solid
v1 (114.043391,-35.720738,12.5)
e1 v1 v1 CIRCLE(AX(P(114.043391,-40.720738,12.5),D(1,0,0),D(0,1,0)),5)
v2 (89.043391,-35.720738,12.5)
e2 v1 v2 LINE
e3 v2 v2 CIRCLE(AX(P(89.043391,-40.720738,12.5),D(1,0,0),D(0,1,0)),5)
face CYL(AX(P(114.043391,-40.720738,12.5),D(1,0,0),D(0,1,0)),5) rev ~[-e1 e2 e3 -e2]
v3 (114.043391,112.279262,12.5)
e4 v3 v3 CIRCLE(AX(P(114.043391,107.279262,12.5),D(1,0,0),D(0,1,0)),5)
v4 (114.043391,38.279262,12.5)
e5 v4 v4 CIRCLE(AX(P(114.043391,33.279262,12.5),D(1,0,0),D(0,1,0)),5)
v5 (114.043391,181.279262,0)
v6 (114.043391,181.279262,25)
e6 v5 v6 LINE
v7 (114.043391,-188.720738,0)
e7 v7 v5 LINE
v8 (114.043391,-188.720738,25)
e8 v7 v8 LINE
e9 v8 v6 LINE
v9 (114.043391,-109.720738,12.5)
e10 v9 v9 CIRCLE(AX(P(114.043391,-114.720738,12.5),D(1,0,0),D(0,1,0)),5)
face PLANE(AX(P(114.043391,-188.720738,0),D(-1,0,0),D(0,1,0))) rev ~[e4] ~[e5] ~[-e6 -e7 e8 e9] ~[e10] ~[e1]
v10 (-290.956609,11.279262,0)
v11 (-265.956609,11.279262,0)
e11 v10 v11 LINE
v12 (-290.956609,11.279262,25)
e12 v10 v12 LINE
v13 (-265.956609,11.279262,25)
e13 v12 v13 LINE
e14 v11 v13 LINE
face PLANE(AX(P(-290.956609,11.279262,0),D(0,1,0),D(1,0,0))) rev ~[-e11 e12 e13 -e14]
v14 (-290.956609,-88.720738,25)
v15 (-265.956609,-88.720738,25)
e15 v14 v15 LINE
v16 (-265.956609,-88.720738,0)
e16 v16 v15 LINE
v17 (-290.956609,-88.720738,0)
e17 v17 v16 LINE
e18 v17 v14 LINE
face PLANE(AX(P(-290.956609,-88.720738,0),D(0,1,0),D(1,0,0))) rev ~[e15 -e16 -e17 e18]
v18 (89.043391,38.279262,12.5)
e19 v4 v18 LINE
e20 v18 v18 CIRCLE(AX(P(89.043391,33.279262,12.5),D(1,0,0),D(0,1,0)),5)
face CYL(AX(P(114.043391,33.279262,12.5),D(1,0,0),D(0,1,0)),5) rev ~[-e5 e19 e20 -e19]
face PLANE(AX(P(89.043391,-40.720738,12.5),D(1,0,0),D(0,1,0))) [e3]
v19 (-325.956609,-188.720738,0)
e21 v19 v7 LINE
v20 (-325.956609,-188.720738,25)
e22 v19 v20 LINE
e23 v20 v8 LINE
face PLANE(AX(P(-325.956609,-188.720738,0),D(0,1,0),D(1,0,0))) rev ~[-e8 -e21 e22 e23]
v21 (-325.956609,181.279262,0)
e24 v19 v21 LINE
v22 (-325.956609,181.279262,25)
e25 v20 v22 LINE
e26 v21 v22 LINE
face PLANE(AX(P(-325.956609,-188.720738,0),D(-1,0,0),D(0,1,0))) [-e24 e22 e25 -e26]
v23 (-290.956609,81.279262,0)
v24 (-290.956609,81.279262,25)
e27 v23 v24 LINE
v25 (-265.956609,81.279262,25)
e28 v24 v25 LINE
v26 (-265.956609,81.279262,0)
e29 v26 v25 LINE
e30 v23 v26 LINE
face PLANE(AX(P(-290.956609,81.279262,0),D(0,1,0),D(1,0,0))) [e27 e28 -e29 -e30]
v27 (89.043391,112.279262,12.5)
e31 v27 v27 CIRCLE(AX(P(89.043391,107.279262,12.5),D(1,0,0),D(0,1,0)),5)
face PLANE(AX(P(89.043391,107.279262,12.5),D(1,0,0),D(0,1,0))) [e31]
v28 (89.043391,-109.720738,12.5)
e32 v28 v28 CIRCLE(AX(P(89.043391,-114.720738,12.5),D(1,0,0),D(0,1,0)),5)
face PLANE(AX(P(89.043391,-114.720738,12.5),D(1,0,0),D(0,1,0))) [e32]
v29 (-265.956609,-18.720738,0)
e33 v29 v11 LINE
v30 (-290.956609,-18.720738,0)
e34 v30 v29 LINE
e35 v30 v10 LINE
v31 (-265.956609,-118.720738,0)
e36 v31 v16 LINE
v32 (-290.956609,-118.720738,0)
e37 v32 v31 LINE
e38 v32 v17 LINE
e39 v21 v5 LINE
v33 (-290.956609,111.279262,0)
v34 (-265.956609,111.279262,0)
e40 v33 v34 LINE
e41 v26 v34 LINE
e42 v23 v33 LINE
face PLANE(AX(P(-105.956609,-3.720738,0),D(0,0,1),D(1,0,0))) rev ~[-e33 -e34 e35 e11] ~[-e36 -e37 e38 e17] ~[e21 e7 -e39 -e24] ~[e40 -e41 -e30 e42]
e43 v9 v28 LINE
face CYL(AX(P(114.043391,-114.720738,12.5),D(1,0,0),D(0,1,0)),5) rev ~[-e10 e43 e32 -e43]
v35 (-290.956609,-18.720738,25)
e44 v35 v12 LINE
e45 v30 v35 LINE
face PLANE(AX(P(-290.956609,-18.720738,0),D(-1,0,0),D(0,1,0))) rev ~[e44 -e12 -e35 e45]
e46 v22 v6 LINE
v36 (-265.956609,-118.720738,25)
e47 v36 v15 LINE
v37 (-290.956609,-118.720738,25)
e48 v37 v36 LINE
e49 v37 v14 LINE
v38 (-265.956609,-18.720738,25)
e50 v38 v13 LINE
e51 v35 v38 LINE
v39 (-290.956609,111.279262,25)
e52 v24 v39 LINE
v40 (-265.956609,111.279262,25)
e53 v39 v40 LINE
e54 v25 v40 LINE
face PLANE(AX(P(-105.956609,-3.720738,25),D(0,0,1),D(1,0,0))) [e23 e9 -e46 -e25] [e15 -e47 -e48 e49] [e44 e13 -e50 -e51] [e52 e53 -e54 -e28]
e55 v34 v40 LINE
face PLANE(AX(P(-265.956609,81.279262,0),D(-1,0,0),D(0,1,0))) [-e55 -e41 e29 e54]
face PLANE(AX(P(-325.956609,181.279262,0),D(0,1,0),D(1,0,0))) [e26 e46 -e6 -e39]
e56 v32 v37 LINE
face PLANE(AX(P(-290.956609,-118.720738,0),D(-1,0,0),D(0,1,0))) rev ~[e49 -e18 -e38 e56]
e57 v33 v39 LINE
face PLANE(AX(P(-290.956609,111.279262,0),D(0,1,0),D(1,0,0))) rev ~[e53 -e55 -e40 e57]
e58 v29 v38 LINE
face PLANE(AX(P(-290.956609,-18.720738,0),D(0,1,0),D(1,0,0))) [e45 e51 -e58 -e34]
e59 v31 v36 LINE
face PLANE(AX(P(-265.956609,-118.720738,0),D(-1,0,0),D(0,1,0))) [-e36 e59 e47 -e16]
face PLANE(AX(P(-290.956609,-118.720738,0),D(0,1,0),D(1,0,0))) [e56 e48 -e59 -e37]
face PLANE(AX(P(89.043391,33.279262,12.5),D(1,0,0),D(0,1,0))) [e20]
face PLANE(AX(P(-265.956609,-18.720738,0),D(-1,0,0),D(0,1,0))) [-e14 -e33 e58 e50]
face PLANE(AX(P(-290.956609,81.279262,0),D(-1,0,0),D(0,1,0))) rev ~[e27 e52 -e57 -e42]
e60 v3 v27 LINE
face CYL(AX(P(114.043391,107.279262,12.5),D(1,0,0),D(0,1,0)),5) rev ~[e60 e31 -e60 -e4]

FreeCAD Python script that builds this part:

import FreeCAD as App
import Part
import Sketcher

V = App.Vector
Q = App.Units.Quantity


def add_polygon(sketch, points):
    """Adds a closed chain of lines whose ends are joined by coincident constraints."""
    first, n = sketch.GeometryCount, len(points)
    for a, b in zip(points, points[1:] + points[:1]):
        sketch.addGeometry(Part.LineSegment(App.Vector(*a, 0), App.Vector(*b, 0)), False)
    for i in range(n):
        sketch.addConstraint(Sketcher.Constraint("Coincident", first + i, 2, first + (i + 1) % n, 1))

doc = App.newDocument("Part")
params = doc.addObject("Spreadsheet::Sheet", "Params")
for row, (alias, value) in enumerate([
    ("sketch1_width", "440 mm"),
    ("sketch1_width2", "25 mm"),
    ("sketch1_height", "370 mm"),
    ("sketch1_height2", "30 mm"),
    ("pad1_length", "25 mm"),
    ("sketch2_diameter", "10 mm"),
    ("pocket1_length", "25 mm"),
], start=1):
    params.set(f"A{row}", alias)
    params.set(f"B{row}", "=" + value)
    params.setAlias(f"B{row}", alias)

body = doc.addObject("PartDesign::Body", "Body")

# Sketch on XY plane
sketch1 = doc.addObject("Sketcher::SketchObject", "Sketch")
body.addObject(sketch1)
sketch1.AttachmentSupport = (doc.XY_Plane, [""])
sketch1.MapMode = "FlatFace"
add_polygon(sketch1, [(-326, 181), (-326, -189), (114, -189), (114, 181)])  # lines 0-3
add_polygon(sketch1, [(-266, -119), (-291, -119), (-291, -89), (-266, -89)])  # lines 4-7
add_polygon(sketch1, [(-266, -19), (-291, -19), (-291, 11), (-266, 11)])  # lines 8-11
add_polygon(sketch1, [(-266, 81), (-291, 81), (-291, 111), (-266, 111)])  # lines 12-15
sketch1.addConstraint([
    Sketcher.Constraint("Vertical", 0),
    Sketcher.Constraint("Horizontal", 1),
    Sketcher.Constraint("Vertical", 2),
    Sketcher.Constraint("Horizontal", 3),
    Sketcher.Constraint("Horizontal", 4),
    Sketcher.Constraint("Vertical", 5),
    Sketcher.Constraint("Horizontal", 6),
    Sketcher.Constraint("Vertical", 7),
    Sketcher.Constraint("Horizontal", 8),
    Sketcher.Constraint("Vertical", 9),
    Sketcher.Constraint("Horizontal", 10),
    Sketcher.Constraint("Vertical", 11),
    Sketcher.Constraint("Horizontal", 12),
    Sketcher.Constraint("Vertical", 13),
    Sketcher.Constraint("Horizontal", 14),
    Sketcher.Constraint("Vertical", 15),
    Sketcher.Constraint("Vertical", 5, 2, 8, 2),
    Sketcher.Constraint("Vertical", 7, 2, 10, 2),
    Sketcher.Constraint("Vertical", 9, 2, 12, 2),
    Sketcher.Constraint("Vertical", 11, 2, 14, 2),
    Sketcher.Constraint("Equal", 7, 9),
    Sketcher.Constraint("Equal", 11, 13),
    Sketcher.Constraint("DistanceX", 1, 1, 1, 2, Q("440 mm")),
    Sketcher.Constraint("DistanceX", 4, 2, 4, 1, Q("25 mm")),
    Sketcher.Constraint("DistanceY", 0, 2, 0, 1, Q("370 mm")),
    Sketcher.Constraint("DistanceY", 5, 1, 5, 2, Q("30 mm")),
    Sketcher.Constraint("DistanceX", 0, 2, 4, 2, Q("35 mm")),
    Sketcher.Constraint("DistanceY", 0, 2, 4, 2, Q("70 mm")),
    Sketcher.Constraint("DistanceY", 5, 2, 8, 2, Q("70 mm")),
    Sketcher.Constraint("DistanceY", 9, 2, 12, 2, Q("70 mm")),
    Sketcher.Constraint("DistanceX", 0, 2, -1, 1, Q("325.956609 mm")),
    Sketcher.Constraint("DistanceY", 0, 2, -1, 1, Q("188.720738 mm")),
])
sketch1.setExpression("Constraints[38]", "Params.sketch1_width")
sketch1.setExpression("Constraints[39]", "Params.sketch1_width2")
sketch1.setExpression("Constraints[40]", "Params.sketch1_height")
sketch1.setExpression("Constraints[41]", "Params.sketch1_height2")
pad1 = doc.addObject("PartDesign::Pad", "Pad")
body.addObject(pad1)
pad1.Profile = sketch1
pad1.setExpression("Length", "Params.pad1_length")

# Sketch on YZ plane
sketch2 = doc.addObject("Sketcher::SketchObject", "Sketch001")
body.addObject(sketch2)
sketch2.AttachmentSupport = (doc.YZ_Plane, [""])
sketch2.MapMode = "FlatFace"
sketch2.AttachmentOffset = App.Placement(V(0, 0, 114.043391), App.Rotation())
sketch2.addGeometry([
    Part.Circle(V(-115, 12, 0), V(0, 0, 1), 5),
    Part.Circle(V(-41, 12, 0), V(0, 0, 1), 5),
    Part.Circle(V(33, 12, 0), V(0, 0, 1), 5),
    Part.Circle(V(107, 12, 0), V(0, 0, 1), 5),
], False)
sketch2.addConstraint([
    Sketcher.Constraint("Equal", 0, 1),
    Sketcher.Constraint("Equal", 1, 2),
    Sketcher.Constraint("Equal", 2, 3),
    Sketcher.Constraint("Horizontal", 0, 3, 1, 3),
    Sketcher.Constraint("Horizontal", 1, 3, 2, 3),
    Sketcher.Constraint("Horizontal", 2, 3, 3, 3),
    Sketcher.Constraint("Diameter", 0, Q("10 mm")),
    Sketcher.Constraint("DistanceX", 0, 3, 1, 3, Q("74 mm")),
    Sketcher.Constraint("DistanceX", 1, 3, 2, 3, Q("74 mm")),
    Sketcher.Constraint("DistanceX", 2, 3, 3, 3, Q("74 mm")),
    Sketcher.Constraint("DistanceY", -1, 1, 0, 3, Q("12.5 mm")),
    Sketcher.Constraint("DistanceX", 0, 3, -1, 1, Q("114.720738 mm")),
])
sketch2.setExpression("Constraints[6]", "Params.sketch2_diameter")
pocket1 = doc.addObject("PartDesign::Pocket", "Pocket")
body.addObject(pocket1)
pocket1.Profile = sketch2
pocket1.setExpression("Length", "Params.pocket1_length")

doc.recompute()
